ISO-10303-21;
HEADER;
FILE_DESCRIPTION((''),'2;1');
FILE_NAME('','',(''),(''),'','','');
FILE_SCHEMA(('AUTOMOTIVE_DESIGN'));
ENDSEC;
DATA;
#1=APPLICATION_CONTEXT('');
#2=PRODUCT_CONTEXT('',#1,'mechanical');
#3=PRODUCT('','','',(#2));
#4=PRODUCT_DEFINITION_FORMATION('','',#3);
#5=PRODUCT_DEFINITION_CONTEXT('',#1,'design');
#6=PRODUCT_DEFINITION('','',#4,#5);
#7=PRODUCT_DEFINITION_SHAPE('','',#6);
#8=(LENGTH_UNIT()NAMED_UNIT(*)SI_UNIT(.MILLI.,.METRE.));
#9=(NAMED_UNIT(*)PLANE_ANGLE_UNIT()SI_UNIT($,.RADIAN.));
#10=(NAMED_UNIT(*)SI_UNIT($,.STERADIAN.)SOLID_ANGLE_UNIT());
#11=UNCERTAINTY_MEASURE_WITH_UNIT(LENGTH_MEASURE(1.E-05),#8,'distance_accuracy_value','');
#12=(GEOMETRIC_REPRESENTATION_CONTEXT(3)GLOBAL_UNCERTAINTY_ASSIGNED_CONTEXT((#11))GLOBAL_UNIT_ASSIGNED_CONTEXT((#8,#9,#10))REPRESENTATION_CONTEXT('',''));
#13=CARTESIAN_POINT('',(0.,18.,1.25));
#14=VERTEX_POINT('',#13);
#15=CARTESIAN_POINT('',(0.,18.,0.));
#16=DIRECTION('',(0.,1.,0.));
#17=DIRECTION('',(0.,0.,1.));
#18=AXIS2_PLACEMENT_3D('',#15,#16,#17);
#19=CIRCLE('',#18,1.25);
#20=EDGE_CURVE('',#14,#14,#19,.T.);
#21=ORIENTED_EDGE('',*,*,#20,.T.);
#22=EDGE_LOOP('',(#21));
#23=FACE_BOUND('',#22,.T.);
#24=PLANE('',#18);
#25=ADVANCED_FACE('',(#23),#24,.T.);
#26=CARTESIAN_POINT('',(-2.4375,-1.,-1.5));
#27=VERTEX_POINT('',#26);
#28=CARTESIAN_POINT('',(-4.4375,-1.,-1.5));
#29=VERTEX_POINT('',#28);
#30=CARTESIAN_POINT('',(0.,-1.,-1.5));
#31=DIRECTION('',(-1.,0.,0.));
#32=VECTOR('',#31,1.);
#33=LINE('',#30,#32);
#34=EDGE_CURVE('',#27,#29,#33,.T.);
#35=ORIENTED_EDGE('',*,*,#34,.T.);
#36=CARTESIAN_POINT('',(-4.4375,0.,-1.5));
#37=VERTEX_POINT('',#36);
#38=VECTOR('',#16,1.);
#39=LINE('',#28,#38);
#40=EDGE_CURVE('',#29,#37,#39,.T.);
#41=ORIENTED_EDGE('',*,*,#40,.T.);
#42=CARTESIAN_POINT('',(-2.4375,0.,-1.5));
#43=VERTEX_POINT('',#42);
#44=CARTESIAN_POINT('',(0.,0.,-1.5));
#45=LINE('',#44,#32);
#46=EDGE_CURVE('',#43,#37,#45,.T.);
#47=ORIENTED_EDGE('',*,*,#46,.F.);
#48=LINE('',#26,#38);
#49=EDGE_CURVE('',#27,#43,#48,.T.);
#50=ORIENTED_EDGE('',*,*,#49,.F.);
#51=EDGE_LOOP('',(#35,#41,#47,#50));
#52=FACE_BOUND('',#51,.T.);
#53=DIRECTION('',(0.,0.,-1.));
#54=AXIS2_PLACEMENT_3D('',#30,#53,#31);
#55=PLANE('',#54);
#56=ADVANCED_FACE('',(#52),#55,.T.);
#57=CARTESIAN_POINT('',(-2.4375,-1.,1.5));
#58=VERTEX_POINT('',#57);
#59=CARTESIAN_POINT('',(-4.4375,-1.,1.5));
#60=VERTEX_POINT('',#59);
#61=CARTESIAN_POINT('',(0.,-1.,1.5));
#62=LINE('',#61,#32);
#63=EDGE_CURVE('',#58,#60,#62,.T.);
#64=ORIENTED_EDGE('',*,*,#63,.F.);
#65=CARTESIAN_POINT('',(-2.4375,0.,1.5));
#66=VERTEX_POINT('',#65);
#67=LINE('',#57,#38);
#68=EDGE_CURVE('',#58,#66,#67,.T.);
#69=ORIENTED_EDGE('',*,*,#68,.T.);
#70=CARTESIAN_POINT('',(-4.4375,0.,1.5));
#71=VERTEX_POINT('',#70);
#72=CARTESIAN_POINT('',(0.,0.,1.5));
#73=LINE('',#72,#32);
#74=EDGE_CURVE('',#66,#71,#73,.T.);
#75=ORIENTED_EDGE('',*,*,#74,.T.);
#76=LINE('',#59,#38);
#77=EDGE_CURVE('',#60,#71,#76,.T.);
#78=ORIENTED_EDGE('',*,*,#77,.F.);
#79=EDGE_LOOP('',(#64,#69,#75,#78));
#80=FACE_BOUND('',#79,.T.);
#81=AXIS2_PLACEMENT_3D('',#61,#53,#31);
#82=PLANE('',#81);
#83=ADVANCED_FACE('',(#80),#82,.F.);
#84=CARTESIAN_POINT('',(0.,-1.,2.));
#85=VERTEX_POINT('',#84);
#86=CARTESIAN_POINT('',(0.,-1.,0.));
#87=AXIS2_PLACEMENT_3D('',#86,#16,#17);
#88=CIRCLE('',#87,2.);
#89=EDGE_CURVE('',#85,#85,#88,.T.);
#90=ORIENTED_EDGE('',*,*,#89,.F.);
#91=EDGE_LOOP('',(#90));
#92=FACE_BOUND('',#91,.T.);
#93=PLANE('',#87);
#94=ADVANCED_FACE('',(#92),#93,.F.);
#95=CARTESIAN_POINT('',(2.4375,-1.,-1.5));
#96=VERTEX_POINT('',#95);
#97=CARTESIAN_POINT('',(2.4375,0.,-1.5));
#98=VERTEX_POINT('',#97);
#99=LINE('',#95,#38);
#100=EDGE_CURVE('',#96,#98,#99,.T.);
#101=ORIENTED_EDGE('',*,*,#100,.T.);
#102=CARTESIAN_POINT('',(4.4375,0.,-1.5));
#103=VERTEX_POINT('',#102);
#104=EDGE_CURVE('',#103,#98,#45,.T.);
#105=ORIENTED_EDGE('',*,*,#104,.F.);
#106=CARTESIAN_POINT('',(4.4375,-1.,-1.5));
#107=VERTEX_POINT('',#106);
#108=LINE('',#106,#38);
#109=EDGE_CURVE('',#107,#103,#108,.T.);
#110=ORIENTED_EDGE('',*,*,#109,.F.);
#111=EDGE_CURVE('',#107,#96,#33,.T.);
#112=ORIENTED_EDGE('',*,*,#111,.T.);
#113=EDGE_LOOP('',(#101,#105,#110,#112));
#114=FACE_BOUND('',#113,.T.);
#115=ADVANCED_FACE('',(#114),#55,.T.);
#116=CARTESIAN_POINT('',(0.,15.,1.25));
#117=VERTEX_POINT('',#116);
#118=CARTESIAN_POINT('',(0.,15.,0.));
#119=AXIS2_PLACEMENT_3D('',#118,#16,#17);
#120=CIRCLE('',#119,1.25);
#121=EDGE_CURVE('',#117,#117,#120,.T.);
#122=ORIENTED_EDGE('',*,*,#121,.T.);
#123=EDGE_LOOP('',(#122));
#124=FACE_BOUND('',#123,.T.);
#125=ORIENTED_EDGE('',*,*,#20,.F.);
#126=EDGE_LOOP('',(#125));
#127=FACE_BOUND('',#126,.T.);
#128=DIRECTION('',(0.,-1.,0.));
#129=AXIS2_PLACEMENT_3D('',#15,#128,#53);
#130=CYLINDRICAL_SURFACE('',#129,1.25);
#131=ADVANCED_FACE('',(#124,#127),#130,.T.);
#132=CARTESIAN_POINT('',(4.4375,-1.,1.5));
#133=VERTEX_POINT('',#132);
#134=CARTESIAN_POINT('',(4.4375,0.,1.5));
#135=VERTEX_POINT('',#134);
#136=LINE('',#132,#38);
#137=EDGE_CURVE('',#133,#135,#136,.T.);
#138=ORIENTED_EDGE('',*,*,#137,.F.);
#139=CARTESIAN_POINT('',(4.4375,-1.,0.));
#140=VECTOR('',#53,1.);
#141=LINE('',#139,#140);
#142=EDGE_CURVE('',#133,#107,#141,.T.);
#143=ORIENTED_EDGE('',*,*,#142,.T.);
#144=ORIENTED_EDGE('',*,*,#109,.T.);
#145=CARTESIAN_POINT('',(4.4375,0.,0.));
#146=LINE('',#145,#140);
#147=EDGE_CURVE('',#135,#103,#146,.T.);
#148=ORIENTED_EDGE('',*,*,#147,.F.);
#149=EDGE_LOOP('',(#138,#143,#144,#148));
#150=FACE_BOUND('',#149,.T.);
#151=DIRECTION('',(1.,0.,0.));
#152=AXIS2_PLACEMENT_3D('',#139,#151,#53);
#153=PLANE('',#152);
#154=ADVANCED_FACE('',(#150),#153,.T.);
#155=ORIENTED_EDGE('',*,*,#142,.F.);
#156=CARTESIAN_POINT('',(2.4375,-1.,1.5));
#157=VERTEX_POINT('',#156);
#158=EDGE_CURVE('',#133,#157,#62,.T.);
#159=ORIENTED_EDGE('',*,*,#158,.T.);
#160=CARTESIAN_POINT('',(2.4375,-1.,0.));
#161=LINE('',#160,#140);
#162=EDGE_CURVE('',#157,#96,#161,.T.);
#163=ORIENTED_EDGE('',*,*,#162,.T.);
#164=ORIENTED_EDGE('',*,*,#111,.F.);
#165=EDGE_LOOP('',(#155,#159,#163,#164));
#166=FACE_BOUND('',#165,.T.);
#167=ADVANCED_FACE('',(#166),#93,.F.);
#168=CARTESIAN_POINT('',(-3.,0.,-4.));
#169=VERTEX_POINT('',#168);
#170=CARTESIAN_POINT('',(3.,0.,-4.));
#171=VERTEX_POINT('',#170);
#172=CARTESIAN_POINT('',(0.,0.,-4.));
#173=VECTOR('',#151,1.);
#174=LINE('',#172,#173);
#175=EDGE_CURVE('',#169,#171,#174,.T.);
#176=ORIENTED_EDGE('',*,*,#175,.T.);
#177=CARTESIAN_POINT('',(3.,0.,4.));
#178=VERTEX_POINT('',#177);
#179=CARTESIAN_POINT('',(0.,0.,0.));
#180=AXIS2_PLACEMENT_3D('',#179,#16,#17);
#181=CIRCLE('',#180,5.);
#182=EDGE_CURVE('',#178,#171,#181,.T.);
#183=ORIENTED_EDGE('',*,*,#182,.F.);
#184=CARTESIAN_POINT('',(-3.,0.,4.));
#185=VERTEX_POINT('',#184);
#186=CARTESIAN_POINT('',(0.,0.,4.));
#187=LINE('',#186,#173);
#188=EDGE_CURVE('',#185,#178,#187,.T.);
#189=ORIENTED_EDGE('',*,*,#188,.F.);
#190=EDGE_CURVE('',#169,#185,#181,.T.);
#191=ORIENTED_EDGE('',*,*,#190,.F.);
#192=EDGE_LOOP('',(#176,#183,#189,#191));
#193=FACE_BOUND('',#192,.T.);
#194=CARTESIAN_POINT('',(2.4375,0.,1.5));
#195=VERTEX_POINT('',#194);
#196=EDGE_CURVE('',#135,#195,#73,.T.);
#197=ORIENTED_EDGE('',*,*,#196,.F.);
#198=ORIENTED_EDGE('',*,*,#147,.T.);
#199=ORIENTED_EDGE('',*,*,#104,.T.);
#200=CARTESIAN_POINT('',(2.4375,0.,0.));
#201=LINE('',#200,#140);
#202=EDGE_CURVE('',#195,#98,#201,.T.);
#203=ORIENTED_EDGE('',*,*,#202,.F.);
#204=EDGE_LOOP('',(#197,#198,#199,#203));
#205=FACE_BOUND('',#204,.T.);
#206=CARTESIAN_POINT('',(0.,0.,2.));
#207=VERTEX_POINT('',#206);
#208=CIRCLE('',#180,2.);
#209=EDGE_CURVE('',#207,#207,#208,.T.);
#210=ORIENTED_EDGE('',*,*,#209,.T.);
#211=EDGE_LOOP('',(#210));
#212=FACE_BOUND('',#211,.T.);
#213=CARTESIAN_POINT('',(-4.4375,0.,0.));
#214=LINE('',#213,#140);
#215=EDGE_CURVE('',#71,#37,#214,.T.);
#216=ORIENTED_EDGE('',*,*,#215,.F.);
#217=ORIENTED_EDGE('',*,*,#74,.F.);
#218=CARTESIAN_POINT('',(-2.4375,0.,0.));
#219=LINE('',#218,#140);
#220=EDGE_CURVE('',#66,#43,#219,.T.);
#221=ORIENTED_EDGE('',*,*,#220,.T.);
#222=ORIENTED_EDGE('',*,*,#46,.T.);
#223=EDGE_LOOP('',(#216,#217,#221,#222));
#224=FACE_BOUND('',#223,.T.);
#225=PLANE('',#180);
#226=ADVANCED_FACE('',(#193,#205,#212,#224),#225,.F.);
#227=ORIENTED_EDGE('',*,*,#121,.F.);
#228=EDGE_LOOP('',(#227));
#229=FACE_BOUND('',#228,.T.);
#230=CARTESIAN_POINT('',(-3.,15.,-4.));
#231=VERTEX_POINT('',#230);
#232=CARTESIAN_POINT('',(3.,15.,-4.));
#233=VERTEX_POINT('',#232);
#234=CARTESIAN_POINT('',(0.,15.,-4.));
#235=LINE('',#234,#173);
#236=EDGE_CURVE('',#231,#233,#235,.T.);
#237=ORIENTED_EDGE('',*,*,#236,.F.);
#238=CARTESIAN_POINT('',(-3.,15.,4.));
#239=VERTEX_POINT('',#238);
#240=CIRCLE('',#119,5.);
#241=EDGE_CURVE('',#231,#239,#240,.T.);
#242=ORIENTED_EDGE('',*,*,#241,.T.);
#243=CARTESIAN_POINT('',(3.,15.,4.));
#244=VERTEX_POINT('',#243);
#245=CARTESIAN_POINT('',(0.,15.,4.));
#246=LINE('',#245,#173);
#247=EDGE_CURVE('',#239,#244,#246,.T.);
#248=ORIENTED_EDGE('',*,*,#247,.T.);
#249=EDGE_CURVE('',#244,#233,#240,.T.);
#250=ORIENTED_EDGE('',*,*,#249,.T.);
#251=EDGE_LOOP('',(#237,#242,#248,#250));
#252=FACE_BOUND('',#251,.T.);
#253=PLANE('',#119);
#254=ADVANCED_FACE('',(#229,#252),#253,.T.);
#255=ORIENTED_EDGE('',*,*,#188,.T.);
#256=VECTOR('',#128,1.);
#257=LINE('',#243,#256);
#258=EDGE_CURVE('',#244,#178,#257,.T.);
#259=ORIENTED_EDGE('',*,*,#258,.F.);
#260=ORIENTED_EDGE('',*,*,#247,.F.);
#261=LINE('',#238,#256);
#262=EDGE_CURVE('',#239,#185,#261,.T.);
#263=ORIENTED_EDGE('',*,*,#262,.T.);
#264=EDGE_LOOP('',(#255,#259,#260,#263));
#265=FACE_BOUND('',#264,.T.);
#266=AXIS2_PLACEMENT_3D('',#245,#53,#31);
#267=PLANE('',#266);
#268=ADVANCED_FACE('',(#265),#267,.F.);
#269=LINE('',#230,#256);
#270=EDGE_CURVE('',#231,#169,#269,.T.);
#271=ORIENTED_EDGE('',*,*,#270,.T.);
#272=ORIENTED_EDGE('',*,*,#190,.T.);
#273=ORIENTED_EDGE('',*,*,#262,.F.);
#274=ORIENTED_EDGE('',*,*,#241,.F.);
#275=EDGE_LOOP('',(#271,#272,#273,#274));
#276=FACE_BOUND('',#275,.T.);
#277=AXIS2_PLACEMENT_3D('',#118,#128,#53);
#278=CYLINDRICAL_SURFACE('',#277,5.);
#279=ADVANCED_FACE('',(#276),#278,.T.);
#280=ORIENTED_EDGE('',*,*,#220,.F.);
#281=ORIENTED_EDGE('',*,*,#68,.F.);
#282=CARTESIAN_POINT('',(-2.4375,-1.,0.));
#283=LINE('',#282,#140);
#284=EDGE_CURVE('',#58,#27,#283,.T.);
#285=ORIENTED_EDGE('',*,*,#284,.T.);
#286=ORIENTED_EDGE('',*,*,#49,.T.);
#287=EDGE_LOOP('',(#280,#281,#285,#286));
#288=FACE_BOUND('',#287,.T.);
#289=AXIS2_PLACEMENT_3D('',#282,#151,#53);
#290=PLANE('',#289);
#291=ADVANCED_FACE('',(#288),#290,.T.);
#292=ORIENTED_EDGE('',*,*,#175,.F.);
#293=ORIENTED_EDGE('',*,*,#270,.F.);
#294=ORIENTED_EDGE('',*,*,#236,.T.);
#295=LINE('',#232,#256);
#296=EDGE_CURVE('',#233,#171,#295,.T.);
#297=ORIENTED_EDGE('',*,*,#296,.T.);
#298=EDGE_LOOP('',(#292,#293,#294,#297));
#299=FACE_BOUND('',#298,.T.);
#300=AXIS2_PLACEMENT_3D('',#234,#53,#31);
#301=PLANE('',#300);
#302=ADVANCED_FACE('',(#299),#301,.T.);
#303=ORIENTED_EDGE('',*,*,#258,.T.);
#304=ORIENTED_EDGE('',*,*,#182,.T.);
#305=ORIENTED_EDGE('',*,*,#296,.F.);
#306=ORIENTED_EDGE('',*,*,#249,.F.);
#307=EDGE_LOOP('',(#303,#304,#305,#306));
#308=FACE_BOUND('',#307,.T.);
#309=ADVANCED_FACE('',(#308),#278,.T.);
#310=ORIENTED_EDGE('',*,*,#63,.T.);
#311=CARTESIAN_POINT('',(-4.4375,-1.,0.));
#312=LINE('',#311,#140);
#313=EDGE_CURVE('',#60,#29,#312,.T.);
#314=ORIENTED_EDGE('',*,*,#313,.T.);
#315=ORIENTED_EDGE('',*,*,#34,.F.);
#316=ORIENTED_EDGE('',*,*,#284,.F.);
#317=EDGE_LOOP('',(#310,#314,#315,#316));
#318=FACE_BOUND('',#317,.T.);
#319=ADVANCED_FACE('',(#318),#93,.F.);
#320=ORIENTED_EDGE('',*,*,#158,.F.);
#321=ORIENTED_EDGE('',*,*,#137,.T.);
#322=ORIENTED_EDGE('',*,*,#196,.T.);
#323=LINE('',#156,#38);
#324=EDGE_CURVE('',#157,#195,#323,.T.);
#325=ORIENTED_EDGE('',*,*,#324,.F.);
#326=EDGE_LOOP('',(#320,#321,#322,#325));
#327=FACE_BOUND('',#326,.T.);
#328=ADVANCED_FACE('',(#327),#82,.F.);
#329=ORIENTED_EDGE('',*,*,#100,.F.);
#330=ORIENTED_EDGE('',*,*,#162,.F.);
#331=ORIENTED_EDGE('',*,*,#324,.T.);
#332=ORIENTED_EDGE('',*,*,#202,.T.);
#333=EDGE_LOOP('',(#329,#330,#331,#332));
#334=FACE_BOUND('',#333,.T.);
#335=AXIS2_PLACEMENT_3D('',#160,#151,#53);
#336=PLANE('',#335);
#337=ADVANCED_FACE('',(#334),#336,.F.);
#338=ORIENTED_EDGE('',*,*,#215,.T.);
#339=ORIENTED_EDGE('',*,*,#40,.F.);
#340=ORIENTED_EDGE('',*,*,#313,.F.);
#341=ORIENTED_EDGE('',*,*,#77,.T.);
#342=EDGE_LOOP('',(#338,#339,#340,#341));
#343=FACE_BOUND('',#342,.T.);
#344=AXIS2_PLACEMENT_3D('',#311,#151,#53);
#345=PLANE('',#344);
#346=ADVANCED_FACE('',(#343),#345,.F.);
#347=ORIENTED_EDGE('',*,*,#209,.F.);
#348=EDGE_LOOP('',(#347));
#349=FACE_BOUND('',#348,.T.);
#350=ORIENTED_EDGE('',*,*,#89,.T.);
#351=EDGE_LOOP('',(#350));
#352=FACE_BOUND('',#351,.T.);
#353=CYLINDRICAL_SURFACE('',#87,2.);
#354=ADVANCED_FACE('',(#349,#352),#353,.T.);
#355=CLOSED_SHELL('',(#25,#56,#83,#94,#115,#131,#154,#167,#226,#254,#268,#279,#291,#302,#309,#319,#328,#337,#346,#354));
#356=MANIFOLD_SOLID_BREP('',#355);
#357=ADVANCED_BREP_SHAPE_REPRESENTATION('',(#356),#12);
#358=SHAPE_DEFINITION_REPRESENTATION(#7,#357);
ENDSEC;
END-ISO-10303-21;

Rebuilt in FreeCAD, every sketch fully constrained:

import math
import FreeCAD as App
import Part
import Sketcher

V = App.Vector


def add_polygon(sketch, points):
    """Adds a closed chain of lines whose ends are joined by coincident constraints."""
    first, n = sketch.GeometryCount, len(points)
    for a, b in zip(points, points[1:] + points[:1]):
        sketch.addGeometry(Part.LineSegment(App.Vector(*a, 0), App.Vector(*b, 0)), False)
    for i in range(n):
        sketch.addConstraint(Sketcher.Constraint("Coincident", first + i, 2, first + (i + 1) % n, 1))

doc = App.newDocument("Part")
params = doc.addObject("Spreadsheet::Sheet", "Params")
for row, (alias, value) in enumerate([
    ("sketch1_radius", "5 mm"),
    ("sketch1_width", "6 mm"),
    ("pad1_length", "15 mm"),
    ("sketch2_diameter", "4 mm"),
    ("sketch2_width", "2 mm"),
    ("sketch2_height", "3 mm"),
    ("pad2_length", "1 mm"),
    ("sketch3_diameter", "2.5 mm"),
    ("pad3_length", "3 mm"),
], start=1):
    params.set(f"A{row}", alias)
    params.set(f"B{row}", "=" + value)
    params.setAlias(f"B{row}", alias)

body = doc.addObject("PartDesign::Body", "Body")

sketch1 = doc.addObject("Sketcher::SketchObject", "Sketch")
body.addObject(sketch1)
sketch1.AttachmentSupport = (doc.XZ_Plane, [""])
sketch1.MapMode = "FlatFace"
sketch1.addGeometry([
    Part.LineSegment(V(3, -4, 0), V(-3, -4, 0)),
    Part.ArcOfCircle(Part.Circle(V(0, 0, 0), V(0, 0, 1), 5), math.radians(127), math.radians(233)),
    Part.LineSegment(V(-3, 4, 0), V(3, 4, 0)),
    Part.ArcOfCircle(Part.Circle(V(0, 0, 0), V(0, 0, 1), 5), math.radians(0), math.radians(53)),
    Part.ArcOfCircle(Part.Circle(V(0, 0, 0), V(0, 0, 1), 5), math.radians(-53), math.radians(0)),
], False)
sketch1.addConstraint([
    Sketcher.Constraint("Coincident", 0, 2, 1, 2),
    Sketcher.Constraint("Coincident", 1, 1, 2, 1),
    Sketcher.Constraint("Coincident", 2, 2, 3, 2),
    Sketcher.Constraint("Tangent", 3, 1, 4, 2),
    Sketcher.Constraint("Coincident", 4, 1, 0, 1),
    Sketcher.Constraint("Horizontal", 0),
    Sketcher.Constraint("Horizontal", 2),
    Sketcher.Constraint("Coincident", 1, 3, -1, 1),
    Sketcher.Constraint("Coincident", 3, 3, -1, 1),
    Sketcher.Constraint("Equal", 1, 3),
    Sketcher.Constraint("Equal", 3, 4),
    Sketcher.Constraint("PointOnObject", 3, 1, -1),
    Sketcher.Constraint("Vertical", 0, 2, 1, 1),
    Sketcher.Constraint("Radius", 1, 5.0),
    Sketcher.Constraint("DistanceX", 0, 2, 0, 1, 6.0),
])
sketch1.setExpression("Constraints[13]", "Params.sketch1_radius")
sketch1.setExpression("Constraints[14]", "Params.sketch1_width")
pad1 = doc.addObject("PartDesign::Pad", "Pad")
body.addObject(pad1)
pad1.Profile = sketch1
pad1.setExpression("Length", "Params.pad1_length")
pad1.Reversed = True

sketch2 = doc.addObject("Sketcher::SketchObject", "Sketch001")
body.addObject(sketch2)
sketch2.AttachmentSupport = (doc.XZ_Plane, [""])
sketch2.MapMode = "FlatFace"
add_polygon(sketch2, [(-4.4, -1.5), (-4.4, 1.5), (-2.4, 1.5), (-2.4, -1.5)])
add_polygon(sketch2, [(2.4, -1.5), (2.4, 1.5), (4.4, 1.5), (4.4, -1.5)])
sketch2.addGeometry(Part.Circle(V(0, 0, 0), V(0, 0, 1), 2), False)
sketch2.addConstraint([
    Sketcher.Constraint("Vertical", 0),
    Sketcher.Constraint("Horizontal", 1),
    Sketcher.Constraint("Vertical", 2),
    Sketcher.Constraint("Horizontal", 3),
    Sketcher.Constraint("Vertical", 4),
    Sketcher.Constraint("Horizontal", 5),
    Sketcher.Constraint("Vertical", 6),
    Sketcher.Constraint("Horizontal", 7),
    Sketcher.Constraint("Coincident", 8, 3, -1, 1),
    Sketcher.Constraint("Symmetric", 2, 2, 4, 2, -1, 1),
    Sketcher.Constraint("Symmetric", 0, 2, 6, 2, -1, 1),
    Sketcher.Constraint("Horizontal", 1, 2, 4, 2),
    Sketcher.Constraint("Diameter", 8, 4.0),
    Sketcher.Constraint("DistanceX", 1, 1, 1, 2, 2.0),
    Sketcher.Constraint("DistanceY", 0, 1, 0, 2, 3.0),
    Sketcher.Constraint("DistanceX", 1, 2, 4, 2, 4.875),
])
sketch2.setExpression("Constraints[20]", "Params.sketch2_diameter")
sketch2.setExpression("Constraints[21]", "Params.sketch2_width")
sketch2.setExpression("Constraints[22]", "Params.sketch2_height")
pad2 = doc.addObject("PartDesign::Pad", "Pad001")
body.addObject(pad2)
pad2.Profile = sketch2
pad2.setExpression("Length", "Params.pad2_length")

sketch3 = doc.addObject("Sketcher::SketchObject", "Sketch002")
body.addObject(sketch3)
sketch3.AttachmentSupport = (doc.XZ_Plane, [""])
sketch3.MapMode = "FlatFace"
sketch3.AttachmentOffset = App.Placement(V(0, 0, -15), App.Rotation())
sketch3.addGeometry(Part.Circle(V(0, 0, 0), V(0, 0, 1), 1.2), False)
sketch3.addConstraint([
    Sketcher.Constraint("Coincident", 0, 3, -1, 1),
    Sketcher.Constraint("Diameter", 0, 2.5),
])
sketch3.setExpression("Constraints[1]", "Params.sketch3_diameter")
pad3 = doc.addObject("PartDesign::Pad", "Pad002")
body.addObject(pad3)
pad3.Profile = sketch3
pad3.setExpression("Length", "Params.pad3_length")
pad3.Reversed = True

doc.recompute()
